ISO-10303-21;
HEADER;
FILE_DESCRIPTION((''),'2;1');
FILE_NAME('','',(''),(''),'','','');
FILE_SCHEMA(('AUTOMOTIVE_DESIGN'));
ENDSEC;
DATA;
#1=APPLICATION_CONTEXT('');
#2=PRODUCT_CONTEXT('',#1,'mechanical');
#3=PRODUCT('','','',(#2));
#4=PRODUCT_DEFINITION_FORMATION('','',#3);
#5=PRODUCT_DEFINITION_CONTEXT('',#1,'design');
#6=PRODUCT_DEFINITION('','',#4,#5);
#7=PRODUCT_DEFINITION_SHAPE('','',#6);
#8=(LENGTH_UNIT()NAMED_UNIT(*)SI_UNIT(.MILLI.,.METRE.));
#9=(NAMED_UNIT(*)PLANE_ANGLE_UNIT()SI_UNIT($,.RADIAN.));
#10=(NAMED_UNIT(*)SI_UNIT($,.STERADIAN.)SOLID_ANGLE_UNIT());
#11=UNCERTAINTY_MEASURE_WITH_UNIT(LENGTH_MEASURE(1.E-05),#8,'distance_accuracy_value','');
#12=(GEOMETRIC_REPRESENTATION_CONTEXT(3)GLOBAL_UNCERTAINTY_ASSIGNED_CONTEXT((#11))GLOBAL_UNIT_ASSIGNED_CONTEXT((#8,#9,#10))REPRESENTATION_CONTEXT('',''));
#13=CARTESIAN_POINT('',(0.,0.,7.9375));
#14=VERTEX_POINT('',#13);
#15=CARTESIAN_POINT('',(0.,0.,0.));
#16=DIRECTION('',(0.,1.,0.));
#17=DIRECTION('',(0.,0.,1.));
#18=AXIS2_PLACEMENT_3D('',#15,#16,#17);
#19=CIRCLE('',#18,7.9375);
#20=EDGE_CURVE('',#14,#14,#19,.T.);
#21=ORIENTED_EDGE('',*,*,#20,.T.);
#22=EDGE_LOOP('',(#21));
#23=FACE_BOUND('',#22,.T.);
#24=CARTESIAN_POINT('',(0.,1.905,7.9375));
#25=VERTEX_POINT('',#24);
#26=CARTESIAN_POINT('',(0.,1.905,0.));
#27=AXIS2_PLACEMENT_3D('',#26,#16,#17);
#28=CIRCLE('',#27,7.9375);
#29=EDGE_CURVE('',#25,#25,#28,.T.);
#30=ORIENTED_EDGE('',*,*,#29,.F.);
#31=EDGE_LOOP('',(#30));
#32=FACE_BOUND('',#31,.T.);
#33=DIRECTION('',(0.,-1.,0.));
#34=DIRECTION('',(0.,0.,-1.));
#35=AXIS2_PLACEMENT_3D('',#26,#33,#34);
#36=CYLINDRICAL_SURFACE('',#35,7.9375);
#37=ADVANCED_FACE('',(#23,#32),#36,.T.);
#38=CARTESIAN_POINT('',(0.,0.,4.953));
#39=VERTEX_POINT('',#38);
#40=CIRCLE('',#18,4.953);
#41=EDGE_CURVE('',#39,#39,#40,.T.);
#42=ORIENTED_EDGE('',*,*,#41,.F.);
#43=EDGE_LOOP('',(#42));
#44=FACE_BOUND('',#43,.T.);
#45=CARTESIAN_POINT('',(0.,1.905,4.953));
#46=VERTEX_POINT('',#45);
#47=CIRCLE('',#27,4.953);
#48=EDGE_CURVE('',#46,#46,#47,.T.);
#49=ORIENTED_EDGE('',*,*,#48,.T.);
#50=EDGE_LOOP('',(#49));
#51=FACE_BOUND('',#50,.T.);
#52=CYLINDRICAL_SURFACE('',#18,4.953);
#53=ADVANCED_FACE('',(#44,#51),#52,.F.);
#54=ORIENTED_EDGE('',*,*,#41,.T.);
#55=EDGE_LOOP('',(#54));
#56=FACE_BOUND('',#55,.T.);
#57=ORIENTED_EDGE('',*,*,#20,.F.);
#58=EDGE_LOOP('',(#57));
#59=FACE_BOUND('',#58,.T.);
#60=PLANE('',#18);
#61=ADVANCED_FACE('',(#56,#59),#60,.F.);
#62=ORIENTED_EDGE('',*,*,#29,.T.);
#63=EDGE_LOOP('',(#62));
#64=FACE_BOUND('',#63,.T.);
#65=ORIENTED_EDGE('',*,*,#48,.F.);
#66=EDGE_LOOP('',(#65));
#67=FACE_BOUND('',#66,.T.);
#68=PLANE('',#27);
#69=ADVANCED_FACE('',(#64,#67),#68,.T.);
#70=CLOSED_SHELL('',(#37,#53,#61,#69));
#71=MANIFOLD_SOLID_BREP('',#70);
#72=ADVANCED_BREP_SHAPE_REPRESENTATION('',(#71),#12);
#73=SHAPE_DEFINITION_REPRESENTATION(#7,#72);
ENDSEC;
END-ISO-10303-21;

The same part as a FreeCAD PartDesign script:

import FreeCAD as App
import Part
import Sketcher
from FreeCAD import Vector
Q = App.Units.Quantity

doc = App.newDocument("Part")
params = doc.addObject("Spreadsheet::Sheet", "Params")
for row, (alias, value) in enumerate([
    ("sketch1_diameter", "0.625 in"),
    ("pad1_length", "0.075 in"),
    ("sketch2_diameter", "0.39 in"),
], start=1):
    params.set(f"A{row}", alias)
    params.set(f"B{row}", "=" + value)
    params.setAlias(f"B{row}", alias)

body = doc.addObject("PartDesign::Body", "Body")

# Sketch on XZ plane
sketch1 = doc.addObject("Sketcher::SketchObject", "Sketch")
body.addObject(sketch1)
sketch1.AttachmentSupport = (doc.XZ_Plane, [""])
sketch1.MapMode = "FlatFace"
sketch1.addGeometry(Part.Circle(Vector(0, 0, 0), Vector(0, 0, 1), 7.9375), False)
sketch1.addConstraint([
    Sketcher.Constraint("Coincident", 0, 3, -1, 1),
    Sketcher.Constraint("Diameter", 0, Q("0.625 in")),
])
sketch1.setExpression("Constraints[1]", "Params.sketch1_diameter")
pad1 = doc.addObject("PartDesign::Pad", "Pad")
body.addObject(pad1)
pad1.Profile = sketch1
pad1.setExpression("Length", "Params.pad1_length")
pad1.Reversed = True

# Sketch on XZ plane
sketch2 = doc.addObject("Sketcher::SketchObject", "Sketch001")
body.addObject(sketch2)
sketch2.AttachmentSupport = (doc.XZ_Plane, [""])
sketch2.MapMode = "FlatFace"
sketch2.AttachmentOffset = App.Placement(Vector(0, 0, -0.075 * 25.4), App.Rotation())
sketch2.addGeometry(Part.Circle(Vector(0, 0, 0), Vector(0, 0, 1), 4.953), False)
sketch2.addConstraint([
    Sketcher.Constraint("Coincident", 0, 3, -1, 1),
    Sketcher.Constraint("Diameter", 0, Q("0.39 in")),
])
sketch2.setExpression("Constraints[1]", "Params.sketch2_diameter")
pocket1 = doc.addObject("PartDesign::Pocket", "Pocket")
body.addObject(pocket1)
pocket1.Profile = sketch2
pocket1.Type = "ThroughAll"
pocket1.Reversed = True

doc.recompute()
